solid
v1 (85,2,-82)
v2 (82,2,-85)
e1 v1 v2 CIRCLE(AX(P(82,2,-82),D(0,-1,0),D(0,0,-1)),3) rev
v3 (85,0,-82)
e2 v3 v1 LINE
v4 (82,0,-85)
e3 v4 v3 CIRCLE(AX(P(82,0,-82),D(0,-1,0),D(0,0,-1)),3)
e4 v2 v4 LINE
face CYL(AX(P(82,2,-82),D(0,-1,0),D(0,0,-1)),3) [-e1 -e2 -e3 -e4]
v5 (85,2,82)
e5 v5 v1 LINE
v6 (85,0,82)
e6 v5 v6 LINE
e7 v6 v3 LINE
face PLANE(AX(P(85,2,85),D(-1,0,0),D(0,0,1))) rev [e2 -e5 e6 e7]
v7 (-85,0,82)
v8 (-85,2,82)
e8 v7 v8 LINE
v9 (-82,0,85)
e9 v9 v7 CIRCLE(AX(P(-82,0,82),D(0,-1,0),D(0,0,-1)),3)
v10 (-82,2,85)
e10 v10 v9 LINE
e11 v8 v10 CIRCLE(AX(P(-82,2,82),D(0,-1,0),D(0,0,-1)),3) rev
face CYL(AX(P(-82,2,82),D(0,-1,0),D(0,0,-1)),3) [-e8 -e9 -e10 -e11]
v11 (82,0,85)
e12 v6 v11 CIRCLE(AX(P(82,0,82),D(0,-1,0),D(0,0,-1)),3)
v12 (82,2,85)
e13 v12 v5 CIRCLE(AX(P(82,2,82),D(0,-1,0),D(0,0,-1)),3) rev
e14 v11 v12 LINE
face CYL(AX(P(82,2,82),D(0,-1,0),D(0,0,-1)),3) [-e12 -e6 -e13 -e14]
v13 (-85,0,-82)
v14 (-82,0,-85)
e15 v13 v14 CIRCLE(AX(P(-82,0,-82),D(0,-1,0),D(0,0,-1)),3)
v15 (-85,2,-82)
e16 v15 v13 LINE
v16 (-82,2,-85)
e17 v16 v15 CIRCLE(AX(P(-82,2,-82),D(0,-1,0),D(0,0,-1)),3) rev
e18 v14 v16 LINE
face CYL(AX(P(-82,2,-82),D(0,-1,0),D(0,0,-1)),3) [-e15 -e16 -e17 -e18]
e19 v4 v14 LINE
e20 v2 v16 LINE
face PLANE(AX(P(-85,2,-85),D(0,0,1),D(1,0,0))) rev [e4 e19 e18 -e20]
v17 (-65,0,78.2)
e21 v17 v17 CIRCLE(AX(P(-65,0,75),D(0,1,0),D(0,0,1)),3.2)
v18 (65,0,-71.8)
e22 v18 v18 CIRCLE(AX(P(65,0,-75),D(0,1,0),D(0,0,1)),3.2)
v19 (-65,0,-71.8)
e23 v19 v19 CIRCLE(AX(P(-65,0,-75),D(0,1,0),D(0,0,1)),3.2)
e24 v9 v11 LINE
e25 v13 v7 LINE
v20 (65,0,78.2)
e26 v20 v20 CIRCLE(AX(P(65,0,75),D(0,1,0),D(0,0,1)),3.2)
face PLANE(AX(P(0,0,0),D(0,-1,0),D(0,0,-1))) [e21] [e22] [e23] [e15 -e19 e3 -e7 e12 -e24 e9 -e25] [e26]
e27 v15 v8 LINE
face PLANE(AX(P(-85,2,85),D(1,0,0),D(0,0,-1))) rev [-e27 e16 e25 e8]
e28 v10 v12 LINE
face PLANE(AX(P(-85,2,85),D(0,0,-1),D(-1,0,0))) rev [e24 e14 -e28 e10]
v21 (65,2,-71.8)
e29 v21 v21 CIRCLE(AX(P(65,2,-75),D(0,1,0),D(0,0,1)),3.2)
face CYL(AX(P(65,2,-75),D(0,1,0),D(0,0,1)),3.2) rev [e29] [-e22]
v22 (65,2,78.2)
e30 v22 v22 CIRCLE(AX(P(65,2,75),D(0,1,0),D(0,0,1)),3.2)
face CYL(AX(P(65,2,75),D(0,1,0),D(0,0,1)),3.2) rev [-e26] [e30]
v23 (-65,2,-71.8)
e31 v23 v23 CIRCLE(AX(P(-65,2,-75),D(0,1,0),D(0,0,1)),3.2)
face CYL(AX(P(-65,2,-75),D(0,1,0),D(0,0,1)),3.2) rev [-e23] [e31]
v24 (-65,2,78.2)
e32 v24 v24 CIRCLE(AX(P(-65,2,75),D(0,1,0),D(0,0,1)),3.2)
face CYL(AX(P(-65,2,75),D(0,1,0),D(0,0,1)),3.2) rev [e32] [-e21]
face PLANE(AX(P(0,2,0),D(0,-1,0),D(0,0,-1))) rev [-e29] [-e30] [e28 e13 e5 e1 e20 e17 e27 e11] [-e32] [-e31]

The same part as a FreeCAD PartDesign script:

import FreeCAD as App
import Part
import Sketcher

V = App.Vector


def edges_at(feature, points):
    """Names of the edges that pass closest to the given points."""
    edges = feature.Shape.Edges
    near = lambda p: min(range(len(edges)), key=lambda i: edges[i].distToShape(Part.Vertex(*p))[0])
    return sorted({f"Edge{near(p) + 1}" for p in points})

doc = App.newDocument("Part")
body = doc.addObject("PartDesign::Body", "Body")

# Sketch on XZ plane
sketch1 = body.newObject("Sketcher::SketchObject", "Sketch")
sketch1.AttachmentSupport = (doc.getObject("XZ_Plane"), [""])
sketch1.MapMode = "FlatFace"
sketch1.addGeometry([
    Part.LineSegment(V(-85, -85, 0), V(-85, 85, 0)),
    Part.LineSegment(V(-85, 85, 0), V(85, 85, 0)),
    Part.LineSegment(V(85, 85, 0), V(85, -85, 0)),
    Part.LineSegment(V(85, -85, 0), V(-85, -85, 0)),
], False)
sketch1.addConstraint([
    Sketcher.Constraint("Coincident", 0, 2, 1, 1),
    Sketcher.Constraint("Coincident", 1, 2, 2, 1),
    Sketcher.Constraint("Coincident", 2, 2, 3, 1),
    Sketcher.Constraint("Coincident", 3, 2, 0, 1),
    Sketcher.Constraint("Vertical", 0),
    Sketcher.Constraint("Horizontal", 1),
    Sketcher.Constraint("Vertical", 2),
    Sketcher.Constraint("Horizontal", 3),
    Sketcher.Constraint("Symmetric", 0, 2, 2, 2, -1, 1),
    Sketcher.Constraint("Equal", 3, 0),
    Sketcher.Constraint("DistanceX", 1, 1, 1, 2, 170.0),
])
pad1 = body.newObject("PartDesign::Pad", "Pad")
pad1.Profile = sketch1
pad1.Length = 2
pad1.Reversed = True
doc.recompute()

fillet = body.newObject("PartDesign::Fillet", "Fillet")
fillet.Base = (pad1, edges_at(pad1, [
    (85, 1, 85),
    (-85, 1, 85),
    (-85, 1, -85),
    (85, 1, -85),
]))
fillet.Radius = 3

# Sketch on XZ plane
sketch2 = body.newObject("Sketcher::SketchObject", "Sketch001")
sketch2.AttachmentSupport = (doc.getObject("XZ_Plane"), [""])
sketch2.MapMode = "FlatFace"
sketch2.AttachmentOffset = App.Placement(V(0, 0, -2), App.Rotation())
sketch2.addGeometry([
    Part.Circle(V(-65, -75, 0), V(0, 0, 1), 3.2),
    Part.Circle(V(65, 75, 0), V(0, 0, 1), 3.2),
    Part.Circle(V(-65, 75, 0), V(0, 0, 1), 3.2),
    Part.Circle(V(65, -75, 0), V(0, 0, 1), 3.2),
], False)
sketch2.addConstraint([
    Sketcher.Constraint("Equal", 0, 1),
    Sketcher.Constraint("Equal", 1, 2),
    Sketcher.Constraint("Equal", 2, 3),
    Sketcher.Constraint("Symmetric", 0, 3, 1, 3, -1, 1),
    Sketcher.Constraint("Symmetric", 2, 3, 3, 3, -1, 1),
    Sketcher.Constraint("Symmetric", 1, 3, 2, 3, -2),
    Sketcher.Constraint("Diameter", 0, 6.4),
    Sketcher.Constraint("DistanceX", 0, 3, -1, 1, 65.0),
    Sketcher.Constraint("DistanceY", 0, 3, -1, 1, 75.0),
])
doc.recompute()
hole = body.newObject("PartDesign::Hole", "Hole")
hole.Profile = sketch2
hole.ThreadType = "None"
hole.Diameter = 6.4
hole.DepthType = "ThroughAll"
hole.Reversed = True

doc.recompute()
